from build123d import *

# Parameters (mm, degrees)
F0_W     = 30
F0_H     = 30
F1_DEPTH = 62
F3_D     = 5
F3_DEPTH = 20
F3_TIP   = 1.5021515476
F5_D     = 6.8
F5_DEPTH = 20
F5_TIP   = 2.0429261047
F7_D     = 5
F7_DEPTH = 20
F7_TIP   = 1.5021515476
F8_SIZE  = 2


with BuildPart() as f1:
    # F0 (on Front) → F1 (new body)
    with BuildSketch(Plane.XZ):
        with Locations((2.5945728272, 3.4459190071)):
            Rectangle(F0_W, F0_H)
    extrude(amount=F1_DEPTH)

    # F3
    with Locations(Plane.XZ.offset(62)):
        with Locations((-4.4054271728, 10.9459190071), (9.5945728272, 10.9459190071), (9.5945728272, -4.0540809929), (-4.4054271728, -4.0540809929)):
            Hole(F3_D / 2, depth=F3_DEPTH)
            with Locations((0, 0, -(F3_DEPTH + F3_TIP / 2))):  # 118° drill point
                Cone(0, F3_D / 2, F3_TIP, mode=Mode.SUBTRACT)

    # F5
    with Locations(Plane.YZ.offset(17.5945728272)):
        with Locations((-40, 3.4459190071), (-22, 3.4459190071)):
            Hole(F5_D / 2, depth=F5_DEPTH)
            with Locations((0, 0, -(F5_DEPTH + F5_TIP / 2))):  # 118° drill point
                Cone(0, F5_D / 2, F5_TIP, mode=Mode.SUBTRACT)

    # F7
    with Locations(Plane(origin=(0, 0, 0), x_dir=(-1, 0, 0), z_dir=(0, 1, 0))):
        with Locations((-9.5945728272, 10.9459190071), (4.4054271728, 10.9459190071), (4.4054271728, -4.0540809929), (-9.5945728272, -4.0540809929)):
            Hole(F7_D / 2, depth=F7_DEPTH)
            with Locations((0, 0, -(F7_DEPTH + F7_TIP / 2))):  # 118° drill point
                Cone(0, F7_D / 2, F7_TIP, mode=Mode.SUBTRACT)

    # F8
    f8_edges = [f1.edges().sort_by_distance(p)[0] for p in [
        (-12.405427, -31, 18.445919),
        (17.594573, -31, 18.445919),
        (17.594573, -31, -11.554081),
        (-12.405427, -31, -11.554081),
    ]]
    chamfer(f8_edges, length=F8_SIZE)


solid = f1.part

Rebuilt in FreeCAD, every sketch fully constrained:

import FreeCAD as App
import Part
import Sketcher

V = App.Vector
Q = App.Units.Quantity


def edges_at(feature, points):
    """Names of the edges that pass closest to the given points."""
    edges = feature.Shape.Edges
    near = lambda p: min(range(len(edges)), key=lambda i: edges[i].distToShape(Part.Vertex(*p))[0])
    return sorted({f"Edge{near(p) + 1}" for p in points})

doc = App.newDocument("Part")
params = doc.addObject("Spreadsheet::Sheet", "Params")
for row, (alias, value) in enumerate([
    ("sketch1_width", "30 mm"),
    ("pad1_length", "62 mm"),
    ("sketch2_diameter", "5 mm"),
    ("hole_diameter", "5 mm"),
    ("hole_depth", "20 mm"),
    ("sketch3_diameter", "6.8 mm"),
    ("hole2_diameter", "6.8 mm"),
    ("hole2_depth", "20 mm"),
    ("sketch4_diameter", "5 mm"),
    ("hole3_diameter", "5 mm"),
    ("hole3_depth", "20 mm"),
    ("chamfer_size", "2 mm"),
], start=1):
    params.set(f"A{row}", alias)
    params.set(f"B{row}", "=" + value)
    params.setAlias(f"B{row}", alias)

body = doc.addObject("PartDesign::Body", "Body")

sketch1 = body.newObject("Sketcher::SketchObject", "Sketch")
sketch1.AttachmentSupport = (doc.getObject("XZ_Plane"), [""])
sketch1.MapMode = "FlatFace"
sketch1.addGeometry(Part.LineSegment(V(-12, 18, 0), V(-12, -12, 0)), False)
sketch1.addGeometry(Part.LineSegment(V(-12, -12, 0), V(18, -12, 0)), False)
sketch1.addGeometry(Part.LineSegment(V(18, -12, 0), V(18, 18, 0)), False)
sketch1.addGeometry(Part.LineSegment(V(18, 18, 0), V(-12, 18, 0)), False)
sketch1.addConstraint(Sketcher.Constraint("Coincident", 0, 2, 1, 1))
sketch1.addConstraint(Sketcher.Constraint("Coincident", 1, 2, 2, 1))
sketch1.addConstraint(Sketcher.Constraint("Coincident", 2, 2, 3, 1))
sketch1.addConstraint(Sketcher.Constraint("Coincident", 3, 2, 0, 1))
sketch1.addConstraint(Sketcher.Constraint("Vertical", 0))
sketch1.addConstraint(Sketcher.Constraint("Horizontal", 1))
sketch1.addConstraint(Sketcher.Constraint("Vertical", 2))
sketch1.addConstraint(Sketcher.Constraint("Horizontal", 3))
sketch1.addConstraint(Sketcher.Constraint("Equal", 3, 0))
sketch1.addConstraint(Sketcher.Constraint("DistanceX", 1, 1, 1, 2, Q("30 mm")))
sketch1.addConstraint(Sketcher.Constraint("DistanceY", 0, 2, -1, 1, Q("11.554081 mm")))
sketch1.addConstraint(Sketcher.Constraint("DistanceX", 0, 2, -1, 1, Q("12.405427 mm")))
sketch1.setExpression("Constraints[9]", "Params.sketch1_width")
pad1 = body.newObject("PartDesign::Pad", "Pad")
pad1.Profile = sketch1
pad1.setExpression("Length", "Params.pad1_length")

sketch2 = body.newObject("Sketcher::SketchObject", "Sketch001")
sketch2.AttachmentSupport = (doc.getObject("XZ_Plane"), [""])
sketch2.MapMode = "FlatFace"
sketch2.AttachmentOffset = App.Placement(V(0, 0, 62), App.Rotation())
sketch2.addGeometry(Part.Circle(V(-4.4, 10.9, 0), V(0, 0, 1), 2.5), False)
sketch2.addGeometry(Part.Circle(V(9.6, 10.9, 0), V(0, 0, 1), 2.5), False)
sketch2.addGeometry(Part.Circle(V(9.6, -4.1, 0), V(0, 0, 1), 2.5), False)
sketch2.addGeometry(Part.Circle(V(-4.4, -4.1, 0), V(0, 0, 1), 2.5), False)
sketch2.addConstraint(Sketcher.Constraint("Equal", 0, 1))
sketch2.addConstraint(Sketcher.Constraint("Equal", 1, 2))
sketch2.addConstraint(Sketcher.Constraint("Equal", 2, 3))
sketch2.addConstraint(Sketcher.Constraint("Horizontal", 0, 3, 1, 3))
sketch2.addConstraint(Sketcher.Constraint("Horizontal", 2, 3, 3, 3))
sketch2.addConstraint(Sketcher.Constraint("Vertical", 1, 3, 2, 3))
sketch2.addConstraint(Sketcher.Constraint("Vertical", 0, 3, 3, 3))
sketch2.addConstraint(Sketcher.Constraint("Diameter", 0, Q("5 mm")))
sketch2.addConstraint(Sketcher.Constraint("DistanceX", 0, 3, 1, 3, Q("14 mm")))
sketch2.addConstraint(Sketcher.Constraint("DistanceY", 2, 3, 1, 3, Q("15 mm")))
sketch2.addConstraint(Sketcher.Constraint("DistanceY", -1, 1, 0, 3, Q("10.945919 mm")))
sketch2.addConstraint(Sketcher.Constraint("DistanceX", 0, 3, -1, 1, Q("4.405427 mm")))
sketch2.setExpression("Constraints[7]", "Params.sketch2_diameter")
doc.recompute()
hole = body.newObject("PartDesign::Hole", "Hole")
hole.Profile = sketch2
hole.ThreadType = "None"
hole.setExpression("Diameter", "Params.hole_diameter")
hole.DepthType = "Dimension"
hole.setExpression("Depth", "Params.hole_depth")
hole.DrillPoint = "Angled"
hole.DrillPointAngle = 118

sketch3 = body.newObject("Sketcher::SketchObject", "Sketch002")
sketch3.AttachmentSupport = (doc.getObject("YZ_Plane"), [""])
sketch3.MapMode = "FlatFace"
sketch3.AttachmentOffset = App.Placement(V(0, 0, 17.594573), App.Rotation())
sketch3.addGeometry(Part.Circle(V(-40, 3.4, 0), V(0, 0, 1), 3.4), False)
sketch3.addGeometry(Part.Circle(V(-22, 3.4, 0), V(0, 0, 1), 3.4), False)
sketch3.addConstraint(Sketcher.Constraint("Equal", 0, 1))
sketch3.addConstraint(Sketcher.Constraint("Horizontal", 0, 3, 1, 3))
sketch3.addConstraint(Sketcher.Constraint("Diameter", 0, Q("6.8 mm")))
sketch3.addConstraint(Sketcher.Constraint("DistanceX", 0, 3, -1, 1, Q("40 mm")))
sketch3.addConstraint(Sketcher.Constraint("DistanceX", 1, 3, -1, 1, Q("22 mm")))
sketch3.addConstraint(Sketcher.Constraint("DistanceY", -1, 1, 0, 3, Q("3.445919 mm")))
sketch3.setExpression("Constraints[2]", "Params.sketch3_diameter")
doc.recompute()
hole2 = body.newObject("PartDesign::Hole", "Hole001")
hole2.Profile = sketch3
hole2.ThreadType = "None"
hole2.setExpression("Diameter", "Params.hole2_diameter")
hole2.DepthType = "Dimension"
hole2.setExpression("Depth", "Params.hole2_depth")
hole2.DrillPoint = "Angled"
hole2.DrillPointAngle = 118

sketch4 = body.newObject("Sketcher::SketchObject", "Sketch003")
sketch4.AttachmentSupport = (doc.getObject("XZ_Plane"), [""])
sketch4.MapMode = "FlatFace"
sketch4.addGeometry(Part.Circle(V(9.6, 10.9, 0), V(0, 0, 1), 2.5), False)
sketch4.addGeometry(Part.Circle(V(-4.4, 10.9, 0), V(0, 0, 1), 2.5), False)
sketch4.addGeometry(Part.Circle(V(-4.4, -4.1, 0), V(0, 0, 1), 2.5), False)
sketch4.addGeometry(Part.Circle(V(9.6, -4.1, 0), V(0, 0, 1), 2.5), False)
sketch4.addConstraint(Sketcher.Constraint("Equal", 0, 1))
sketch4.addConstraint(Sketcher.Constraint("Equal", 1, 2))
sketch4.addConstraint(Sketcher.Constraint("Equal", 2, 3))
sketch4.addConstraint(Sketcher.Constraint("Horizontal", 0, 3, 1, 3))
sketch4.addConstraint(Sketcher.Constraint("Horizontal", 2, 3, 3, 3))
sketch4.addConstraint(Sketcher.Constraint("Vertical", 1, 3, 2, 3))
sketch4.addConstraint(Sketcher.Constraint("Vertical", 0, 3, 3, 3))
sketch4.addConstraint(Sketcher.Constraint("Diameter", 0, Q("5 mm")))
sketch4.addConstraint(Sketcher.Constraint("DistanceX", 1, 3, 0, 3, Q("14 mm")))
sketch4.addConstraint(Sketcher.Constraint("DistanceY", 2, 3, 1, 3, Q("15 mm")))
sketch4.addConstraint(Sketcher.Constraint("DistanceY", -1, 1, 0, 3, Q("10.945919 mm")))
sketch4.addConstraint(Sketcher.Constraint("DistanceX", -1, 1, 0, 3, Q("9.594573 mm")))
sketch4.setExpression("Constraints[7]", "Params.sketch4_diameter")
doc.recompute()
hole3 = body.newObject("PartDesign::Hole", "Hole002")
hole3.Profile = sketch4
hole3.ThreadType = "None"
hole3.setExpression("Diameter", "Params.hole3_diameter")
hole3.DepthType = "Dimension"
hole3.setExpression("Depth", "Params.hole3_depth")
hole3.DrillPoint = "Angled"
hole3.DrillPointAngle = 118
hole3.Reversed = True
doc.recompute()

chamfer = body.newObject("PartDesign::Chamfer", "Chamfer")
chamfer.Base = (hole3, edges_at(hole3, [
    (-12.405, -31, 18.446),
    (17.595, -31, 18.446),
    (17.595, -31, -11.554),
    (-12.405, -31, -11.554),
]))
chamfer.setExpression("Size", "Params.chamfer_size")

doc.recompute()
